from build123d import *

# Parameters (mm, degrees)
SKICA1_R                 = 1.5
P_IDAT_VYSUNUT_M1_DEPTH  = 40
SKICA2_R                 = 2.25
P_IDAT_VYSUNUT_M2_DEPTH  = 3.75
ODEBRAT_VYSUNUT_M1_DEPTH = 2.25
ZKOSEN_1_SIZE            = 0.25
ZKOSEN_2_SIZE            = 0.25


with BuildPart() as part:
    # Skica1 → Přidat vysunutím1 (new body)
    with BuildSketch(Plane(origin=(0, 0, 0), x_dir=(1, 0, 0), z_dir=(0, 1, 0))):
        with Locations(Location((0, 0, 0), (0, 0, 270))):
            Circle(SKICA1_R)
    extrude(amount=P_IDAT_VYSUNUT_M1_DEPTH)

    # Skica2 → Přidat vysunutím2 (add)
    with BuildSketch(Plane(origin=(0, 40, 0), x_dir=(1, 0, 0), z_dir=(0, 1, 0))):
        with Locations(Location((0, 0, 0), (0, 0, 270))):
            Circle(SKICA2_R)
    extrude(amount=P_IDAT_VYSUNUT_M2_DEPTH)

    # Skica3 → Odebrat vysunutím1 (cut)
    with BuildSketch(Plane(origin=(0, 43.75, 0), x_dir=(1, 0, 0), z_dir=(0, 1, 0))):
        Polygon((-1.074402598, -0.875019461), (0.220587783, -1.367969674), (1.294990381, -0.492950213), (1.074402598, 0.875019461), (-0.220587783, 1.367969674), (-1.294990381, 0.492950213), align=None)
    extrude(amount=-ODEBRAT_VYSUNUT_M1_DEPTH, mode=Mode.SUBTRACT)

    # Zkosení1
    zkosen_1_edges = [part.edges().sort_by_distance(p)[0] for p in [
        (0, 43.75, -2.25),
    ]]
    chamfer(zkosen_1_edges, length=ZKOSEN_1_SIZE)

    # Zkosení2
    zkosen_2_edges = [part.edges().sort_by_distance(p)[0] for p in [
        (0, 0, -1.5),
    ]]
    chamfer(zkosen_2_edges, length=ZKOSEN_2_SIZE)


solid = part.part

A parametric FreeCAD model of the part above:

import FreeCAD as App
import Part
import Sketcher
from FreeCAD import Vector


def edges_at(feature, points):
    """Names of the edges that pass closest to the given points."""
    edges = feature.Shape.Edges
    near = lambda p: min(range(len(edges)), key=lambda i: edges[i].distToShape(Part.Vertex(*p))[0])
    return sorted({f"Edge{near(p) + 1}" for p in points})


def add_polygon(sketch, points):
    """Adds a closed chain of lines whose ends are joined by coincident constraints."""
    first, n = sketch.GeometryCount, len(points)
    for a, b in zip(points, points[1:] + points[:1]):
        sketch.addGeometry(Part.LineSegment(App.Vector(*a, 0), App.Vector(*b, 0)), False)
    for i in range(n):
        sketch.addConstraint(Sketcher.Constraint("Coincident", first + i, 2, first + (i + 1) % n, 1))

doc = App.newDocument("Part")
body = doc.addObject("PartDesign::Body", "Body")

sketch1 = body.newObject("Sketcher::SketchObject", "Sketch")
sketch1.AttachmentSupport = (doc.getObject("XZ_Plane"), [""])
sketch1.MapMode = "FlatFace"
sketch1.addGeometry(Part.Circle(Vector(0, 0, 0), Vector(0, 0, 1), 1.5), False)
sketch1.addConstraint([
    Sketcher.Constraint("Coincident", 0, 3, -1, 1),
    Sketcher.Constraint("Diameter", 0, 3.0),
])
pad1 = body.newObject("PartDesign::Pad", "Pad")
pad1.Profile = sketch1
pad1.Length = 40
pad1.Reversed = True

sketch2 = body.newObject("Sketcher::SketchObject", "Sketch001")
sketch2.AttachmentSupport = (doc.getObject("XZ_Plane"), [""])
sketch2.MapMode = "FlatFace"
sketch2.AttachmentOffset = App.Placement(Vector(0, 0, -40), App.Rotation())
sketch2.addGeometry(Part.Circle(Vector(0, 0, 0), Vector(0, 0, 1), 2.25), False)
sketch2.addConstraint([
    Sketcher.Constraint("Coincident", 0, 3, -1, 1),
    Sketcher.Constraint("Diameter", 0, 4.5),
])
pad2 = body.newObject("PartDesign::Pad", "Pad001")
pad2.Profile = sketch2
pad2.Length = 3.75
pad2.Reversed = True

sketch3 = body.newObject("Sketcher::SketchObject", "Sketch002")
sketch3.AttachmentSupport = (doc.getObject("XZ_Plane"), [""])
sketch3.MapMode = "FlatFace"
sketch3.AttachmentOffset = App.Placement(Vector(0, 0, -43.75), App.Rotation())
add_polygon(sketch3, [(-1.074403, 0.875019), (0.220588, 1.36797), (1.29499, 0.49295), (1.074403, -0.875019), (-0.220588, -1.36797), (-1.29499, -0.49295)])
sketch3.addConstraint([
    Sketcher.Constraint("Symmetric", 0, 2, 3, 2, -1, 1),
    Sketcher.Constraint("Symmetric", 1, 2, 4, 2, -1, 1),
    Sketcher.Constraint("Symmetric", 2, 2, 5, 2, -1, 1),
    Sketcher.Constraint("Equal", 0, 1),
    Sketcher.Constraint("Equal", 1, 2),
    Sketcher.Constraint("DistanceY", 4, 2, 1, 2, 0.9859),
    Sketcher.Constraint("Distance", 0, 1.385641),
    Sketcher.Constraint("DistanceY", -1, 1, 0, 2, 1.36797),
    Sketcher.Constraint("DistanceX", -1, 1, 1, 2, 1.29499),
])
pocket1 = body.newObject("PartDesign::Pocket", "Pocket")
pocket1.Profile = sketch3
pocket1.Length = 2.25
pocket1.Reversed = True
doc.recompute()

chamfer = body.newObject("PartDesign::Chamfer", "Chamfer")
chamfer.Base = (pocket1, edges_at(pocket1, [(0, 43.75, -2.25)]))
chamfer.Size = 0.25
doc.recompute()

chamfer2 = body.newObject("PartDesign::Chamfer", "Chamfer001")
chamfer2.Base = (chamfer, edges_at(chamfer, [(0, 0, -1.5)]))
chamfer2.Size = 0.25

doc.recompute()
